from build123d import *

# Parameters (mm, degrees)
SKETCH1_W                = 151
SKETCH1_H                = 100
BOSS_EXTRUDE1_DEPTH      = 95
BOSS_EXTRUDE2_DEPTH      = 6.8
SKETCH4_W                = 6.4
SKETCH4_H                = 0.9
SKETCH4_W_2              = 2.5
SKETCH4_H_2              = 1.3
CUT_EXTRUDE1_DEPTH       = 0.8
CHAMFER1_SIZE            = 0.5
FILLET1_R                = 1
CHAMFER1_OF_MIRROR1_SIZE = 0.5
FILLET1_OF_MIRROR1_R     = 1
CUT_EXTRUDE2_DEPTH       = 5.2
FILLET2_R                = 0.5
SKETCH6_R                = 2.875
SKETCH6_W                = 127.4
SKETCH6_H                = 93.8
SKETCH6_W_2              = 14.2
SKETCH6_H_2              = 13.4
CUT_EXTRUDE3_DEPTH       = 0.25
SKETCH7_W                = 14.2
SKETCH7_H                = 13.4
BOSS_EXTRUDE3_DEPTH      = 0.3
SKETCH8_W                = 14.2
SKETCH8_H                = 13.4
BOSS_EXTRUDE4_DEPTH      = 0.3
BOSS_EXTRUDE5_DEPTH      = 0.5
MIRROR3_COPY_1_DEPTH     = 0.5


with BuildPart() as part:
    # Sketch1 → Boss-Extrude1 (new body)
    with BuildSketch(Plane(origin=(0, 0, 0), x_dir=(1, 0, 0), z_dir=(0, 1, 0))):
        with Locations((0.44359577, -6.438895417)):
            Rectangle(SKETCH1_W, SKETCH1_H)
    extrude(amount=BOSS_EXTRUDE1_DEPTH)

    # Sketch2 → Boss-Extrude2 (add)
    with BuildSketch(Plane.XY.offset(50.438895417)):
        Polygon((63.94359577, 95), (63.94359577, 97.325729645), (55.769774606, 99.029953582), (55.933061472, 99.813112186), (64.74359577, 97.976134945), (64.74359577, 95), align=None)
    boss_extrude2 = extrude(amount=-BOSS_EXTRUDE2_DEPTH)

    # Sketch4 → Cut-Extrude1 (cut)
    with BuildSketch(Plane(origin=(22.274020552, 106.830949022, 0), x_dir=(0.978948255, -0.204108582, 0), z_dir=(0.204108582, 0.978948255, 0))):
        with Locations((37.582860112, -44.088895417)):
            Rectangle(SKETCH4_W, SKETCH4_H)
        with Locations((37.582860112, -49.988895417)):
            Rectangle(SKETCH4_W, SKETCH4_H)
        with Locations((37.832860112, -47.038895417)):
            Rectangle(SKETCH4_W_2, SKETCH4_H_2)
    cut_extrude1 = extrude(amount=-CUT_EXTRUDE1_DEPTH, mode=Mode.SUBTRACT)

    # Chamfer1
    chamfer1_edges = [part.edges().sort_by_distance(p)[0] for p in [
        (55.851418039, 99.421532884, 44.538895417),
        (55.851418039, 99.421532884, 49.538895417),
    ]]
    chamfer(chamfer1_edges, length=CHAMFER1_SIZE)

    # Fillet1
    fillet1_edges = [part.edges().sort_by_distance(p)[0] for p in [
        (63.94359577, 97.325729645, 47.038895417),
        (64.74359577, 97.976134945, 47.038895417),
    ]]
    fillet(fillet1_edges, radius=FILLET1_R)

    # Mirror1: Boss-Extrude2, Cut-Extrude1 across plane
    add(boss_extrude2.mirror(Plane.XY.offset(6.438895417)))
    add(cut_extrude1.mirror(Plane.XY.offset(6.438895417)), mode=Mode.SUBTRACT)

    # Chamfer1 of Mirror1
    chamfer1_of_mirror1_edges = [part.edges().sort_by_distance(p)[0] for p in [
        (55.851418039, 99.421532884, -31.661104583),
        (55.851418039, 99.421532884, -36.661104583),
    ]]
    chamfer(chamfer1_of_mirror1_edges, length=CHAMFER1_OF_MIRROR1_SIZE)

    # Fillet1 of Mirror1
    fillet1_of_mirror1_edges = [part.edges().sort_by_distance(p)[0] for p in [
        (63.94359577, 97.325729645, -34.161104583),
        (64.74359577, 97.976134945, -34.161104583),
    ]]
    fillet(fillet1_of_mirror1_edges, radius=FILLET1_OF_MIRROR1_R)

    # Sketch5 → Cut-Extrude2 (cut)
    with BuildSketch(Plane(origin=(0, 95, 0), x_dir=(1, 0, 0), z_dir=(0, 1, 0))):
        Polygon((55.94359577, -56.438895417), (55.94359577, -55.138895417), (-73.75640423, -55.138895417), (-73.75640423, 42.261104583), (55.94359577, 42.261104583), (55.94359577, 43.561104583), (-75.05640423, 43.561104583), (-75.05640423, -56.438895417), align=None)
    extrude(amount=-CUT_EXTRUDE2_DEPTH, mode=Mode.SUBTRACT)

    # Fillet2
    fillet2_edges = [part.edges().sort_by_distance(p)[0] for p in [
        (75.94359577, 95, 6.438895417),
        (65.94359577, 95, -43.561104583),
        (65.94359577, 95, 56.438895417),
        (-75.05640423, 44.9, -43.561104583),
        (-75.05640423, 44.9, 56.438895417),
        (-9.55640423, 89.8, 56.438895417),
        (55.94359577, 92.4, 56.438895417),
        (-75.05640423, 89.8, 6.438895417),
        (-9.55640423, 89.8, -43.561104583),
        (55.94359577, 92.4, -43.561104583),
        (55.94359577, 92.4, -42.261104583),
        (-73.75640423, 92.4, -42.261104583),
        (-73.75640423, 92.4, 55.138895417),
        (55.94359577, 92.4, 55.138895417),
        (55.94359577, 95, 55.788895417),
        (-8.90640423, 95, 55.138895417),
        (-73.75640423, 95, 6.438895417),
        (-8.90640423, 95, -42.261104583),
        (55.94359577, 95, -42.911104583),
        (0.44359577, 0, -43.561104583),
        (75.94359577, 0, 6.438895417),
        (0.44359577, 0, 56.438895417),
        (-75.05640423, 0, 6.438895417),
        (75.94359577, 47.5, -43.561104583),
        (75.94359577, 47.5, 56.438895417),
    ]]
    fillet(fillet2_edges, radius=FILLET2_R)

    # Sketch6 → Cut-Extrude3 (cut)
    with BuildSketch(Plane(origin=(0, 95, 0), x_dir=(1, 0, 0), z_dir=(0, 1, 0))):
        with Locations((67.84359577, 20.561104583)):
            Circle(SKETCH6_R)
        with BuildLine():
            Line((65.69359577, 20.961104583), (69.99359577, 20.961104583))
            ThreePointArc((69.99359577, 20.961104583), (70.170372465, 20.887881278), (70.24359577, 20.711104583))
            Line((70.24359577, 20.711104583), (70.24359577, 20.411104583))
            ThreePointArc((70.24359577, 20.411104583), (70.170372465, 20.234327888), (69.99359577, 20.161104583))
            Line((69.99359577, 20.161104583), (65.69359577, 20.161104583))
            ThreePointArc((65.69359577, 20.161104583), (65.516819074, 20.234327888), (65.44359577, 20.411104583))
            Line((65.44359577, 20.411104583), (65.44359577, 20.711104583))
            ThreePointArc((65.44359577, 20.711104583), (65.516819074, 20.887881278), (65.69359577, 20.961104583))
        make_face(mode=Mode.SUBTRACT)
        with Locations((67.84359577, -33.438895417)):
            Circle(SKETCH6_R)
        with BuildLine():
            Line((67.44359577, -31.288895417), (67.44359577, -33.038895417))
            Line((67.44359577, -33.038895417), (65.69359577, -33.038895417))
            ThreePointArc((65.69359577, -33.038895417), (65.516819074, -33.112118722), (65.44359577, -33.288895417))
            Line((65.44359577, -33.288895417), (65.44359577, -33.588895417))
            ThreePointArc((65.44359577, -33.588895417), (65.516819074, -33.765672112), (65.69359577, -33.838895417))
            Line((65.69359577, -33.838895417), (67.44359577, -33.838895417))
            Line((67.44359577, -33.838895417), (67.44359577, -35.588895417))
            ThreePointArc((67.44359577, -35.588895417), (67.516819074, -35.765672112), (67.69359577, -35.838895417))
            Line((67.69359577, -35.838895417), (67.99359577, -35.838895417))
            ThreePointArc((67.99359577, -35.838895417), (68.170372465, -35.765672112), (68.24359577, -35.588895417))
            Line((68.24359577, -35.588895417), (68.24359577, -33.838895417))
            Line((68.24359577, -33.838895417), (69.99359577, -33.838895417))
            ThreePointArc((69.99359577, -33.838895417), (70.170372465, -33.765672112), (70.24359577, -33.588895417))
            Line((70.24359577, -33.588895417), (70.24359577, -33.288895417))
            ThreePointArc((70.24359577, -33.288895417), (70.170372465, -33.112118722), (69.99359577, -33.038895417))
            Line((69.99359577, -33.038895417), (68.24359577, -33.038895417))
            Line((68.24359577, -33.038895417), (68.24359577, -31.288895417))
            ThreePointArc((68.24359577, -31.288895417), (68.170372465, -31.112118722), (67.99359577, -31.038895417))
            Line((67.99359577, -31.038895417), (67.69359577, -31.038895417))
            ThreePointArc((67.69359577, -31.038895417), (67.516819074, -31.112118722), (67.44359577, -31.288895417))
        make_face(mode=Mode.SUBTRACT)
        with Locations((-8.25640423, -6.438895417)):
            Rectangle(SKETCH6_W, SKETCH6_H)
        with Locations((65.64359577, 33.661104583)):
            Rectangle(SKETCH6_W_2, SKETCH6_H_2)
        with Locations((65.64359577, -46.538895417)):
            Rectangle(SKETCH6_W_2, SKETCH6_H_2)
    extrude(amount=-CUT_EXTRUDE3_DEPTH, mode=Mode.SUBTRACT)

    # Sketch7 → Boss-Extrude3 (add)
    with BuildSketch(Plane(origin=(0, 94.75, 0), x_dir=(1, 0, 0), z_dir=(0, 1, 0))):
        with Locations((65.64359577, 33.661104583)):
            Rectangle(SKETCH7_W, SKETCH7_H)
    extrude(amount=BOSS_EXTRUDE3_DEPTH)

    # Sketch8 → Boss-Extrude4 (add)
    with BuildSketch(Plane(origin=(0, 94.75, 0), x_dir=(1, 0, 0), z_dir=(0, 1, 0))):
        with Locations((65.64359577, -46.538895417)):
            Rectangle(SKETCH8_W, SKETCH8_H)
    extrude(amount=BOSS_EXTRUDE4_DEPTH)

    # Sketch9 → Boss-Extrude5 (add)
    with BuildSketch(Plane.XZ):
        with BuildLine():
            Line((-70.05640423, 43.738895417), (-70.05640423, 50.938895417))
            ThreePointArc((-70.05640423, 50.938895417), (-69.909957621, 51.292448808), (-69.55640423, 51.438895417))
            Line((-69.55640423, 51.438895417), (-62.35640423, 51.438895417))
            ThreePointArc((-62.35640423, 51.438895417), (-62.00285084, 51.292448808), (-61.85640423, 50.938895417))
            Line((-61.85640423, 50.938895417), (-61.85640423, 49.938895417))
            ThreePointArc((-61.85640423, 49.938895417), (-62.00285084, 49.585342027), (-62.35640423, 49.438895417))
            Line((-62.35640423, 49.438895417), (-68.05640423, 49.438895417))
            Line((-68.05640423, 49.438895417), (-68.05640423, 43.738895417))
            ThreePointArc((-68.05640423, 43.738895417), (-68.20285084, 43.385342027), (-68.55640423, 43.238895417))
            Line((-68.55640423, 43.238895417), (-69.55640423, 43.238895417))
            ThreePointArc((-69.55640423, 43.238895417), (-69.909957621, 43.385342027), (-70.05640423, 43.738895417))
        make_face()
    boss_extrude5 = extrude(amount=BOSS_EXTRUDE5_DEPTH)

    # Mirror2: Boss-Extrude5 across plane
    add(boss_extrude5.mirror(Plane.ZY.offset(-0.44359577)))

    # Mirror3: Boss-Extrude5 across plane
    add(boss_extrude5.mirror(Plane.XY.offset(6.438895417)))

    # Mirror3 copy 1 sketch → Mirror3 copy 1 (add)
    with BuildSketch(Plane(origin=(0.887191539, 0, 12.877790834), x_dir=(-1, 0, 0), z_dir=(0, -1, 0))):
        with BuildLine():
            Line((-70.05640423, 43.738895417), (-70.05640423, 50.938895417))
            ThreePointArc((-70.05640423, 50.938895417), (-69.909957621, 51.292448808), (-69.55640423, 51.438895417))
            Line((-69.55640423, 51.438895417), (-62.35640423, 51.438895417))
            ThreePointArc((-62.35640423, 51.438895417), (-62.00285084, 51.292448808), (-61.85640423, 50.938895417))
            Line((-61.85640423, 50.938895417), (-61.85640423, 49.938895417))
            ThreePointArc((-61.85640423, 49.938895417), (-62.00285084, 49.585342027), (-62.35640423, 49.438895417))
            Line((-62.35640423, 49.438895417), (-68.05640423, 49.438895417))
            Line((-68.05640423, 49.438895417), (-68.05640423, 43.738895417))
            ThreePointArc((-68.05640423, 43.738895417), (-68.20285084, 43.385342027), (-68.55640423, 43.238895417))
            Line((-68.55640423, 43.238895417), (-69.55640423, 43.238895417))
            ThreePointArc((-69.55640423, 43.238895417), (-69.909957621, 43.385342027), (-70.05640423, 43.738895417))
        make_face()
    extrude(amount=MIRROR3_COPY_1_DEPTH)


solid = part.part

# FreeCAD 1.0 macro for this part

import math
import FreeCAD as App
import Part
import Sketcher
Q = App.Units.Quantity


def edges_at(feature, points):
    """Names of the edges that pass closest to the given points."""
    edges = feature.Shape.Edges
    near = lambda p: min(range(len(edges)), key=lambda i: edges[i].distToShape(Part.Vertex(*p))[0])
    return sorted({f"Edge{near(p) + 1}" for p in points})


def add_polygon(sketch, points):
    """Adds a closed chain of lines whose ends are joined by coincident constraints."""
    first, n = sketch.GeometryCount, len(points)
    for a, b in zip(points, points[1:] + points[:1]):
        sketch.addGeometry(Part.LineSegment(App.Vector(*a, 0), App.Vector(*b, 0)), False)
    for i in range(n):
        sketch.addConstraint(Sketcher.Constraint("Coincident", first + i, 2, first + (i + 1) % n, 1))

doc = App.newDocument("Part")
body = doc.addObject("PartDesign::Body", "Body")
body.AllowCompound = True

sketch1 = body.newObject("Sketcher::SketchObject", "Sketch")
sketch1.AttachmentSupport = (doc.getObject("XZ_Plane"), [""])
sketch1.MapMode = "FlatFace"
add_polygon(sketch1, [(-75, -44), (-75, 56), (76, 56), (76, -44)])
sketch1.addConstraint(Sketcher.Constraint("Vertical", 0))
sketch1.addConstraint(Sketcher.Constraint("Horizontal", 1))
sketch1.addConstraint(Sketcher.Constraint("Vertical", 2))
sketch1.addConstraint(Sketcher.Constraint("Horizontal", 3))
sketch1.addConstraint(Sketcher.Constraint("DistanceX", 1, 1, 1, 2, Q("151 mm")))
sketch1.addConstraint(Sketcher.Constraint("DistanceY", 0, 1, 0, 2, Q("100 mm")))
sketch1.addConstraint(Sketcher.Constraint("DistanceX", 0, 2, -1, 1, Q("75.056404 mm")))
sketch1.addConstraint(Sketcher.Constraint("DistanceY", -1, 1, 0, 2, Q("56.438895 mm")))
pad1 = body.newObject("PartDesign::Pad", "Pad")
pad1.Profile = sketch1
pad1.Length = 95
pad1.Reversed = True

sketch2 = body.newObject("Sketcher::SketchObject", "Sketch001")
sketch2.AttachmentSupport = (doc.getObject("XY_Plane"), [""])
sketch2.MapMode = "FlatFace"
sketch2.AttachmentOffset = App.Placement(App.Vector(0, 0, 50.438895), App.Rotation())
add_polygon(sketch2, [(63.9, 97.3), (63.9, 95), (64.7, 95), (64.7, 98), (55.9, 99.8), (55.8, 99)])
sketch2.addConstraint(Sketcher.Constraint("Vertical", 0))
sketch2.addConstraint(Sketcher.Constraint("Horizontal", 1))
sketch2.addConstraint(Sketcher.Constraint("Vertical", 2))
sketch2.addConstraint(Sketcher.Constraint("Perpendicular", 3, 4))
sketch2.addConstraint(Sketcher.Constraint("Perpendicular", 4, 5))
sketch2.addConstraint(Sketcher.Constraint("Distance", 3, Q("9 mm")))
sketch2.addConstraint(Sketcher.Constraint("DistanceX", 1, 1, 1, 2, Q("0.8 mm")))
sketch2.addConstraint(Sketcher.Constraint("DistanceY", -1, 1, 0, 2, Q("95 mm")))
sketch2.addConstraint(Sketcher.Constraint("Distance", 4, Q("0.8 mm")))
sketch2.addConstraint(Sketcher.Constraint("DistanceY", 0, 2, 0, 1, Q("2.32573 mm")))
sketch2.addConstraint(Sketcher.Constraint("DistanceY", 2, 1, 2, 2, Q("2.976135 mm")))
sketch2.addConstraint(Sketcher.Constraint("DistanceX", -1, 1, 3, 2, Q("55.933061 mm")))
pad2 = body.newObject("PartDesign::Pad", "Pad001")
pad2.Profile = sketch2
pad2.Length = 6.8
pad2.Reversed = True

sketch3 = body.newObject("Sketcher::SketchObject", "Sketch002")
sketch3.Placement = App.Placement(App.Vector(22.274021, 106.830949, 0), App.Rotation(App.Vector(0.978948255, -0.204108582, 0), App.Vector(0, 0, -0.999999999), App.Vector(0.204108582, 0.978948255, 0), "ZXY"))
add_polygon(sketch3, [(34.4, -43.6), (34.4, -44.5), (40.8, -44.5), (40.8, -43.6)])
add_polygon(sketch3, [(34.4, -49.5), (34.4, -50.4), (40.8, -50.4), (40.8, -49.5)])
add_polygon(sketch3, [(36.6, -46.4), (36.6, -47.7), (39.1, -47.7), (39.1, -46.4)])
sketch3.addConstraint(Sketcher.Constraint("Vertical", 0))
sketch3.addConstraint(Sketcher.Constraint("Horizontal", 1))
sketch3.addConstraint(Sketcher.Constraint("Vertical", 2))
sketch3.addConstraint(Sketcher.Constraint("Horizontal", 3))
sketch3.addConstraint(Sketcher.Constraint("Vertical", 4))
sketch3.addConstraint(Sketcher.Constraint("Horizontal", 5))
sketch3.addConstraint(Sketcher.Constraint("Vertical", 6))
sketch3.addConstraint(Sketcher.Constraint("Horizontal", 7))
sketch3.addConstraint(Sketcher.Constraint("Vertical", 8))
sketch3.addConstraint(Sketcher.Constraint("Horizontal", 9))
sketch3.addConstraint(Sketcher.Constraint("Vertical", 10))
sketch3.addConstraint(Sketcher.Constraint("Horizontal", 11))
sketch3.addConstraint(Sketcher.Constraint("Vertical", 3, 2, 4, 2))
sketch3.addConstraint(Sketcher.Constraint("Vertical", 2, 2, 5, 2))
sketch3.addConstraint(Sketcher.Constraint("Equal", 2, 4))
sketch3.addConstraint(Sketcher.Constraint("DistanceX", 1, 1, 1, 2, Q("6.4 mm")))
sketch3.addConstraint(Sketcher.Constraint("DistanceX", 9, 1, 9, 2, Q("2.5 mm")))
sketch3.addConstraint(Sketcher.Constraint("DistanceY", 0, 2, 0, 1, Q("0.9 mm")))
sketch3.addConstraint(Sketcher.Constraint("DistanceY", 8, 2, 8, 1, Q("1.3 mm")))
sketch3.addConstraint(Sketcher.Constraint("DistanceY", 6, 2, 1, 2, Q("5 mm")))
sketch3.addConstraint(Sketcher.Constraint("DistanceX", 7, 2, 8, 2, Q("2.2 mm")))
sketch3.addConstraint(Sketcher.Constraint("DistanceY", 7, 2, 8, 2, Q("1.85 mm")))
sketch3.addConstraint(Sketcher.Constraint("DistanceX", -1, 1, 0, 2, Q("34.38286 mm")))
sketch3.addConstraint(Sketcher.Constraint("DistanceY", 0, 2, -1, 1, Q("44.538895 mm")))
pocket1 = body.newObject("PartDesign::Pocket", "Pocket")
pocket1.Profile = sketch3
pocket1.Length = 0.8
doc.recompute()

chamfer = body.newObject("PartDesign::Chamfer", "Chamfer")
chamfer.Base = (pocket1, edges_at(pocket1, [(55.851, 99.422, 44.539), (55.851, 99.422, 49.539)]))
chamfer.Size = 0.5
doc.recompute()

fillet = body.newObject("PartDesign::Fillet", "Fillet")
fillet.Base = (chamfer, edges_at(chamfer, [(63.944, 97.326, 47.039), (64.744, 97.976, 47.039)]))
fillet.Radius = 1
doc.recompute()

datumplane = body.newObject("PartDesign::Plane", "DatumPlane")
datumplane.AttachmentSupport = (doc.getObject("XY_Plane"), [""])
datumplane.MapMode = "FlatFace"
datumplane.AttachmentOffset = App.Placement(App.Vector(0, 0, 6.438895), App.Rotation())
mirrored = body.newObject("PartDesign::Mirrored", "Mirrored")
mirrored.Originals = [pad2, pocket1]
mirrored.MirrorPlane = (datumplane, [""])
body.Tip = mirrored
doc.recompute()

chamfer2 = body.newObject("PartDesign::Chamfer", "Chamfer001")
chamfer2.Base = (mirrored, edges_at(mirrored, [(55.851, 99.422, -31.661), (55.851, 99.422, -36.661)]))
chamfer2.Size = 0.5
doc.recompute()

fillet2 = body.newObject("PartDesign::Fillet", "Fillet001")
fillet2.Base = (chamfer2, edges_at(chamfer2, [(63.944, 97.326, -34.161), (64.744, 97.976, -34.161)]))
fillet2.Radius = 1

sketch4 = body.newObject("Sketcher::SketchObject", "Sketch003")
sketch4.AttachmentSupport = (doc.getObject("XZ_Plane"), [""])
sketch4.MapMode = "FlatFace"
sketch4.AttachmentOffset = App.Placement(App.Vector(0, 0, -95), App.Rotation())
add_polygon(sketch4, [(55.9, 56.4), (55.9, 55.1), (-73.8, 55.1), (-73.8, -42.3), (55.9, -42.3), (55.9, -43.6), (-75.1, -43.6), (-75.1, 56.4)])
sketch4.addConstraint(Sketcher.Constraint("Vertical", 0))
sketch4.addConstraint(Sketcher.Constraint("Horizontal", 1))
sketch4.addConstraint(Sketcher.Constraint("Vertical", 2))
sketch4.addConstraint(Sketcher.Constraint("Horizontal", 3))
sketch4.addConstraint(Sketcher.Constraint("Vertical", 4))
sketch4.addConstraint(Sketcher.Constraint("Horizontal", 5))
sketch4.addConstraint(Sketcher.Constraint("Vertical", 6))
sketch4.addConstraint(Sketcher.Constraint("Horizontal", 7))
sketch4.addConstraint(Sketcher.Constraint("Vertical", 0, 2, 3, 2))
sketch4.addConstraint(Sketcher.Constraint("Equal", 0, 4))
sketch4.addConstraint(Sketcher.Constraint("DistanceX", 5, 2, 5, 1, Q("131 mm")))
sketch4.addConstraint(Sketcher.Constraint("DistanceY", 6, 1, 6, 2, Q("100 mm")))
sketch4.addConstraint(Sketcher.Constraint("DistanceX", 1, 2, 1, 1, Q("129.7 mm")))
sketch4.addConstraint(Sketcher.Constraint("DistanceY", 0, 2, 0, 1, Q("1.3 mm")))
sketch4.addConstraint(Sketcher.Constraint("DistanceX", -1, 1, 0, 2, Q("55.943596 mm")))
sketch4.addConstraint(Sketcher.Constraint("DistanceY", -1, 1, 0, 2, Q("55.138895 mm")))
pocket2 = body.newObject("PartDesign::Pocket", "Pocket001")
pocket2.Profile = sketch4
pocket2.Length = 5.2
pocket2.Reversed = True
doc.recompute()

fillet3 = body.newObject("PartDesign::Fillet", "Fillet002")
fillet3.Base = (pocket2, edges_at(pocket2, [
    (75.944, 95, 6.439),
    (65.944, 95, -43.561),
    (65.944, 95, 56.439),
    (-75.056, 44.9, -43.561),
    (-75.056, 44.9, 56.439),
    (-9.556, 89.8, 56.439),
    (55.944, 92.4, 56.439),
    (-75.056, 89.8, 6.439),
    (-9.556, 89.8, -43.561),
    (55.944, 92.4, -43.561),
    (55.944, 92.4, -42.261),
    (-73.756, 92.4, -42.261),
    (-73.756, 92.4, 55.139),
    (55.944, 92.4, 55.139),
    (55.944, 95, 55.789),
    (-8.906, 95, 55.139),
    (-73.756, 95, 6.439),
    (-8.906, 95, -42.261),
    (55.944, 95, -42.911),
    (0.444, 0, -43.561),
    (75.944, 0, 6.439),
    (0.444, 0, 56.439),
    (-75.056, 0, 6.439),
    (75.944, 47.5, -43.561),
    (75.944, 47.5, 56.439),
]))
fillet3.Radius = 0.5

sketch5 = body.newObject("Sketcher::SketchObject", "Sketch004")
sketch5.AttachmentSupport = (doc.getObject("XZ_Plane"), [""])
sketch5.MapMode = "FlatFace"
sketch5.AttachmentOffset = App.Placement(App.Vector(0, 0, -95), App.Rotation())
sketch5.addGeometry(Part.Circle(App.Vector(67.84, -20.56, 0), App.Vector(0, 0, 1), 2.88), False)
sketch5.addGeometry(Part.ArcOfCircle(Part.Circle(App.Vector(65.69, -20.71, 0), App.Vector(0, 0, 1), 0.25), math.radians(180), math.radians(270)), False)
sketch5.addGeometry(Part.LineSegment(App.Vector(65.69, -20.96, 0), App.Vector(69.99, -20.96, 0)), False)
sketch5.addGeometry(Part.ArcOfCircle(Part.Circle(App.Vector(69.99, -20.71, 0), App.Vector(0, 0, 1), 0.25), math.radians(-90), math.radians(0)), False)
sketch5.addGeometry(Part.LineSegment(App.Vector(70.24, -20.71, 0), App.Vector(70.24, -20.41, 0)), False)
sketch5.addGeometry(Part.ArcOfCircle(Part.Circle(App.Vector(69.99, -20.41, 0), App.Vector(0, 0, 1), 0.25), math.radians(0), math.radians(90)), False)
sketch5.addGeometry(Part.LineSegment(App.Vector(69.99, -20.16, 0), App.Vector(65.69, -20.16, 0)), False)
sketch5.addGeometry(Part.ArcOfCircle(Part.Circle(App.Vector(65.69, -20.41, 0), App.Vector(0, 0, 1), 0.25), math.radians(90), math.radians(180)), False)
sketch5.addGeometry(Part.LineSegment(App.Vector(65.44, -20.41, 0), App.Vector(65.44, -20.71, 0)), False)
sketch5.addGeometry(Part.Circle(App.Vector(67.84, 33.44, 0), App.Vector(0, 0, 1), 2.88), False)
sketch5.addGeometry(Part.LineSegment(App.Vector(67.44, 33.04, 0), App.Vector(67.44, 31.29, 0)), False)
sketch5.addGeometry(Part.ArcOfCircle(Part.Circle(App.Vector(67.69, 31.29, 0), App.Vector(0, 0, 1), 0.25), math.radians(180), math.radians(270)), False)
sketch5.addGeometry(Part.LineSegment(App.Vector(67.69, 31.04, 0), App.Vector(67.99, 31.04, 0)), False)
sketch5.addGeometry(Part.ArcOfCircle(Part.Circle(App.Vector(67.99, 31.29, 0), App.Vector(0, 0, 1), 0.25), math.radians(-90), math.radians(0)), False)
sketch5.addGeometry(Part.LineSegment(App.Vector(68.24, 31.29, 0), App.Vector(68.24, 33.04, 0)), False)
sketch5.addGeometry(Part.LineSegment(App.Vector(68.24, 33.04, 0), App.Vector(69.99, 33.04, 0)), False)
sketch5.addGeometry(Part.ArcOfCircle(Part.Circle(App.Vector(69.99, 33.29, 0), App.Vector(0, 0, 1), 0.25), math.radians(-90), math.radians(0)), False)
sketch5.addGeometry(Part.LineSegment(App.Vector(70.24, 33.29, 0), App.Vector(70.24, 33.59, 0)), False)
sketch5.addGeometry(Part.ArcOfCircle(Part.Circle(App.Vector(69.99, 33.59, 0), App.Vector(0, 0, 1), 0.25), math.radians(0), math.radians(90)), False)
sketch5.addGeometry(Part.LineSegment(App.Vector(69.99, 33.84, 0), App.Vector(68.24, 33.84, 0)), False)
sketch5.addGeometry(Part.LineSegment(App.Vector(68.24, 33.84, 0), App.Vector(68.24, 35.59, 0)), False)
sketch5.addGeometry(Part.ArcOfCircle(Part.Circle(App.Vector(67.99, 35.59, 0), App.Vector(0, 0, 1), 0.25), math.radians(0), math.radians(90)), False)
sketch5.addGeometry(Part.LineSegment(App.Vector(67.99, 35.84, 0), App.Vector(67.69, 35.84, 0)), False)
sketch5.addGeometry(Part.ArcOfCircle(Part.Circle(App.Vector(67.69, 35.59, 0), App.Vector(0, 0, 1), 0.25), math.radians(90), math.radians(180)), False)
sketch5.addGeometry(Part.LineSegment(App.Vector(67.44, 35.59, 0), App.Vector(67.44, 33.84, 0)), False)
sketch5.addGeometry(Part.LineSegment(App.Vector(67.44, 33.84, 0), App.Vector(65.69, 33.84, 0)), False)
sketch5.addGeometry(Part.ArcOfCircle(Part.Circle(App.Vector(65.69, 33.59, 0), App.Vector(0, 0, 1), 0.25), math.radians(90), math.radians(180)), False)
sketch5.addGeometry(Part.LineSegment(App.Vector(65.44, 33.59, 0), App.Vector(65.44, 33.29, 0)), False)
sketch5.addGeometry(Part.ArcOfCircle(Part.Circle(App.Vector(65.69, 33.29, 0), App.Vector(0, 0, 1), 0.25), math.radians(180), math.radians(270)), False)
sketch5.addGeometry(Part.LineSegment(App.Vector(65.69, 33.04, 0), App.Vector(67.44, 33.04, 0)), False)
add_polygon(sketch5, [(-71.96, -40.46), (-71.96, 53.34), (55.44, 53.34), (55.44, -40.46)])
add_polygon(sketch5, [(58.54, -40.36), (58.54, -26.96), (72.74, -26.96), (72.74, -40.36)])
add_polygon(sketch5, [(58.54, 39.84), (58.54, 53.24), (72.74, 53.24), (72.74, 39.84)])
sketch5.addConstraint(Sketcher.Constraint("Tangent", 1, 2, 2, 1))
sketch5.addConstraint(Sketcher.Constraint("Tangent", 2, 2, 3, 1))
sketch5.addConstraint(Sketcher.Constraint("Tangent", 3, 2, 4, 1))
sketch5.addConstraint(Sketcher.Constraint("Tangent", 4, 2, 5, 1))
sketch5.addConstraint(Sketcher.Constraint("Tangent", 5, 2, 6, 1))
sketch5.addConstraint(Sketcher.Constraint("Tangent", 6, 2, 7, 1))
sketch5.addConstraint(Sketcher.Constraint("Tangent", 7, 2, 8, 1))
sketch5.addConstraint(Sketcher.Constraint("Tangent", 8, 2, 1, 1))
sketch5.addConstraint(Sketcher.Constraint("Tangent", 10, 2, 11, 1))
sketch5.addConstraint(Sketcher.Constraint("Tangent", 11, 2, 12, 1))
sketch5.addConstraint(Sketcher.Constraint("Tangent", 12, 2, 13, 1))
sketch5.addConstraint(Sketcher.Constraint("Tangent", 13, 2, 14, 1))
sketch5.addConstraint(Sketcher.Constraint("Coincident", 14, 2, 15, 1))
sketch5.addConstraint(Sketcher.Constraint("Tangent", 15, 2, 16, 1))
sketch5.addConstraint(Sketcher.Constraint("Tangent", 16, 2, 17, 1))
sketch5.addConstraint(Sketcher.Constraint("Tangent", 17, 2, 18, 1))
sketch5.addConstraint(Sketcher.Constraint("Tangent", 18, 2, 19, 1))
sketch5.addConstraint(Sketcher.Constraint("Coincident", 19, 2, 20, 1))
sketch5.addConstraint(Sketcher.Constraint("Tangent", 20, 2, 21, 1))
sketch5.addConstraint(Sketcher.Constraint("Tangent", 21, 2, 22, 1))
sketch5.addConstraint(Sketcher.Constraint("Tangent", 22, 2, 23, 1))
sketch5.addConstraint(Sketcher.Constraint("Tangent", 23, 2, 24, 1))
sketch5.addConstraint(Sketcher.Constraint("Coincident", 24, 2, 25, 1))
sketch5.addConstraint(Sketcher.Constraint("Tangent", 25, 2, 26, 1))
sketch5.addConstraint(Sketcher.Constraint("Tangent", 26, 2, 27, 1))
sketch5.addConstraint(Sketcher.Constraint("Tangent", 27, 2, 28, 1))
sketch5.addConstraint(Sketcher.Constraint("Tangent", 28, 2, 29, 1))
sketch5.addConstraint(Sketcher.Constraint("Coincident", 29, 2, 10, 1))
sketch5.addConstraint(Sketcher.Constraint("Horizontal", 2))
sketch5.addConstraint(Sketcher.Constraint("Vertical", 4))
sketch5.addConstraint(Sketcher.Constraint("Horizontal", 6))
sketch5.addConstraint(Sketcher.Constraint("Vertical", 8))
sketch5.addConstraint(Sketcher.Constraint("Vertical", 10))
sketch5.addConstraint(Sketcher.Constraint("Horizontal", 12))
sketch5.addConstraint(Sketcher.Constraint("Vertical", 14))
sketch5.addConstraint(Sketcher.Constraint("Horizontal", 15))
sketch5.addConstraint(Sketcher.Constraint("Vertical", 17))
sketch5.addConstraint(Sketcher.Constraint("Horizontal", 19))
sketch5.addConstraint(Sketcher.Constraint("Vertical", 20))
sketch5.addConstraint(Sketcher.Constraint("Horizontal", 22))
sketch5.addConstraint(Sketcher.Constraint("Vertical", 24))
sketch5.addConstraint(Sketcher.Constraint("Horizontal", 25))
sketch5.addConstraint(Sketcher.Constraint("Vertical", 27))
sketch5.addConstraint(Sketcher.Constraint("Horizontal", 29))
sketch5.addConstraint(Sketcher.Constraint("Vertical", 30))
sketch5.addConstraint(Sketcher.Constraint("Horizontal", 31))
sketch5.addConstraint(Sketcher.Constraint("Vertical", 32))
sketch5.addConstraint(Sketcher.Constraint("Horizontal", 33))
sketch5.addConstraint(Sketcher.Constraint("Vertical", 34))
sketch5.addConstraint(Sketcher.Constraint("Horizontal", 35))
sketch5.addConstraint(Sketcher.Constraint("Vertical", 36))
sketch5.addConstraint(Sketcher.Constraint("Horizontal", 37))
sketch5.addConstraint(Sketcher.Constraint("Vertical", 38))
sketch5.addConstraint(Sketcher.Constraint("Horizontal", 39))
sketch5.addConstraint(Sketcher.Constraint("Vertical", 40))
sketch5.addConstraint(Sketcher.Constraint("Horizontal", 41))
sketch5.addConstraint(Sketcher.Constraint("Equal", 1, 3))
sketch5.addConstraint(Sketcher.Constraint("Equal", 3, 5))
sketch5.addConstraint(Sketcher.Constraint("Equal", 5, 7))
sketch5.addConstraint(Sketcher.Constraint("Equal", 0, 9))
sketch5.addConstraint(Sketcher.Constraint("Equal", 7, 11))
sketch5.addConstraint(Sketcher.Constraint("Equal", 11, 13))
sketch5.addConstraint(Sketcher.Constraint("Equal", 13, 16))
sketch5.addConstraint(Sketcher.Constraint("Equal", 16, 18))
sketch5.addConstraint(Sketcher.Constraint("Equal", 18, 21))
sketch5.addConstraint(Sketcher.Constraint("Equal", 21, 23))
sketch5.addConstraint(Sketcher.Constraint("Equal", 23, 26))
sketch5.addConstraint(Sketcher.Constraint("Equal", 26, 28))
sketch5.addConstraint(Sketcher.Constraint("Horizontal", 18, 3, 26, 3))
sketch5.addConstraint(Sketcher.Constraint("Horizontal", 16, 3, 28, 3))
sketch5.addConstraint(Sketcher.Constraint("Vertical", 0, 3, 9, 3))
sketch5.addConstraint(Sketcher.Constraint("Vertical", 5, 3, 16, 3))
sketch5.addConstraint(Sketcher.Constraint("Vertical", 13, 3, 21, 3))
sketch5.addConstraint(Sketcher.Constraint("Vertical", 11, 3, 23, 3))
sketch5.addConstraint(Sketcher.Constraint("Vertical", 7, 3, 26, 3))
sketch5.addConstraint(Sketcher.Constraint("Vertical", 37, 2, 38, 2))
sketch5.addConstraint(Sketcher.Constraint("Vertical", 36, 2, 39, 2))
sketch5.addConstraint(Sketcher.Constraint("Equal", 19, 25))
sketch5.addConstraint(Sketcher.Constraint("Equal", 22, 4))
sketch5.addConstraint(Sketcher.Constraint("Equal", 29, 10))
sketch5.addConstraint(Sketcher.Constraint("Equal", 8, 17))
sketch5.addConstraint(Sketcher.Constraint("Equal", 14, 20))
sketch5.addConstraint(Sketcher.Constraint("Equal", 36, 38))
sketch5.addConstraint(Sketcher.Constraint("Diameter", 0, Q("5.75 mm")))
sketch5.addConstraint(Sketcher.Constraint("Radius", 1, Q("0.25 mm")))
sketch5.addConstraint(Sketcher.Constraint("DistanceX", 2, 1, 2, 2, Q("4.3 mm")))
sketch5.addConstraint(Sketcher.Constraint("DistanceX", 12, 1, 12, 2, Q("0.3 mm")))
sketch5.addConstraint(Sketcher.Constraint("DistanceX", 31, 1, 31, 2, Q("127.4 mm")))
sketch5.addConstraint(Sketcher.Constraint("DistanceX", 35, 1, 35, 2, Q("14.2 mm")))
sketch5.addConstraint(Sketcher.Constraint("DistanceY", 30, 1, 30, 2, Q("93.8 mm")))
sketch5.addConstraint(Sketcher.Constraint("DistanceY", 34, 1, 34, 2, Q("13.4 mm")))
sketch5.addConstraint(Sketcher.Constraint("DistanceY", 0, 3, 9, 3, Q("54 mm")))
sketch5.addConstraint(Sketcher.Constraint("DistanceY", 1, 3, 11, 3, Q("52 mm")))
sketch5.addConstraint(Sketcher.Constraint("DistanceX", 31, 2, 23, 2, Q("12 mm")))
sketch5.addConstraint(Sketcher.Constraint("DistanceY", 34, 2, 1, 2, Q("6 mm")))
sketch5.addConstraint(Sketcher.Constraint("DistanceY", 21, 2, 40, 2, Q("4 mm")))
sketch5.addConstraint(Sketcher.Constraint("DistanceY", 1, 2, 0, 3, Q("0.4 mm")))
sketch5.addConstraint(Sketcher.Constraint("DistanceX", 0, 3, 3, 2, Q("2.4 mm")))
sketch5.addConstraint(Sketcher.Constraint("DistanceY", 25, 2, 30, 2, Q("19.5 mm")))
sketch5.addConstraint(Sketcher.Constraint("DistanceX", 34, 2, 8, 2, Q("6.9 mm")))
sketch5.addConstraint(Sketcher.Constraint("DistanceX", -1, 1, 0, 3, Q("67.843596 mm")))
sketch5.addConstraint(Sketcher.Constraint("DistanceY", 0, 3, -1, 1, Q("20.561105 mm")))
pocket3 = body.newObject("PartDesign::Pocket", "Pocket002")
pocket3.Profile = sketch5
pocket3.Length = 0.25
pocket3.Reversed = True

sketch6 = body.newObject("Sketcher::SketchObject", "Sketch005")
sketch6.AttachmentSupport = (doc.getObject("XZ_Plane"), [""])
sketch6.MapMode = "FlatFace"
sketch6.AttachmentOffset = App.Placement(App.Vector(0, 0, -94.75), App.Rotation())
add_polygon(sketch6, [(59, -40), (59, -27), (73, -27), (73, -40)])
sketch6.addConstraint(Sketcher.Constraint("Vertical", 0))
sketch6.addConstraint(Sketcher.Constraint("Horizontal", 1))
sketch6.addConstraint(Sketcher.Constraint("Vertical", 2))
sketch6.addConstraint(Sketcher.Constraint("Horizontal", 3))
sketch6.addConstraint(Sketcher.Constraint("DistanceX", 1, 1, 1, 2, Q("14.2 mm")))
sketch6.addConstraint(Sketcher.Constraint("DistanceY", 0, 1, 0, 2, Q("13.4 mm")))
sketch6.addConstraint(Sketcher.Constraint("DistanceX", -1, 1, 0, 2, Q("58.543596 mm")))
sketch6.addConstraint(Sketcher.Constraint("DistanceY", 0, 2, -1, 1, Q("26.961105 mm")))
pad3 = body.newObject("PartDesign::Pad", "Pad002")
pad3.Profile = sketch6
pad3.Length = 0.3
pad3.Reversed = True

sketch7 = body.newObject("Sketcher::SketchObject", "Sketch006")
sketch7.AttachmentSupport = (doc.getObject("XZ_Plane"), [""])
sketch7.MapMode = "FlatFace"
sketch7.AttachmentOffset = App.Placement(App.Vector(0, 0, -94.75), App.Rotation())
add_polygon(sketch7, [(59, 40), (59, 53), (73, 53), (73, 40)])
sketch7.addConstraint(Sketcher.Constraint("Vertical", 0))
sketch7.addConstraint(Sketcher.Constraint("Horizontal", 1))
sketch7.addConstraint(Sketcher.Constraint("Vertical", 2))
sketch7.addConstraint(Sketcher.Constraint("Horizontal", 3))
sketch7.addConstraint(Sketcher.Constraint("DistanceX", 1, 1, 1, 2, Q("14.2 mm")))
sketch7.addConstraint(Sketcher.Constraint("DistanceY", 0, 1, 0, 2, Q("13.4 mm")))
sketch7.addConstraint(Sketcher.Constraint("DistanceX", -1, 1, 0, 2, Q("58.543596 mm")))
sketch7.addConstraint(Sketcher.Constraint("DistanceY", -1, 1, 0, 2, Q("53.238895 mm")))
pad4 = body.newObject("PartDesign::Pad", "Pad003")
pad4.Profile = sketch7
pad4.Length = 0.3
pad4.Reversed = True

sketch8 = body.newObject("Sketcher::SketchObject", "Sketch007")
sketch8.AttachmentSupport = (doc.getObject("XZ_Plane"), [""])
sketch8.MapMode = "FlatFace"
sketch8.addGeometry(Part.LineSegment(App.Vector(-70.06, 50.94, 0), App.Vector(-70.06, 43.74, 0)), False)
sketch8.addGeometry(Part.ArcOfCircle(Part.Circle(App.Vector(-69.56, 43.74, 0), App.Vector(0, 0, 1), 0.5), math.radians(180), math.radians(270)), False)
sketch8.addGeometry(Part.LineSegment(App.Vector(-69.56, 43.24, 0), App.Vector(-68.56, 43.24, 0)), False)
sketch8.addGeometry(Part.ArcOfCircle(Part.Circle(App.Vector(-68.56, 43.74, 0), App.Vector(0, 0, 1), 0.5), math.radians(-90), math.radians(0)), False)
sketch8.addGeometry(Part.LineSegment(App.Vector(-68.06, 43.74, 0), App.Vector(-68.06, 49.44, 0)), False)
sketch8.addGeometry(Part.LineSegment(App.Vector(-68.06, 49.44, 0), App.Vector(-62.36, 49.44, 0)), False)
sketch8.addGeometry(Part.ArcOfCircle(Part.Circle(App.Vector(-62.36, 49.94, 0), App.Vector(0, 0, 1), 0.5), math.radians(-90), math.radians(0)), False)
sketch8.addGeometry(Part.LineSegment(App.Vector(-61.86, 49.94, 0), App.Vector(-61.86, 50.94, 0)), False)
sketch8.addGeometry(Part.ArcOfCircle(Part.Circle(App.Vector(-62.36, 50.94, 0), App.Vector(0, 0, 1), 0.5), math.radians(0), math.radians(90)), False)
sketch8.addGeometry(Part.LineSegment(App.Vector(-62.36, 51.44, 0), App.Vector(-69.56, 51.44, 0)), False)
sketch8.addGeometry(Part.ArcOfCircle(Part.Circle(App.Vector(-69.56, 50.94, 0), App.Vector(0, 0, 1), 0.5), math.radians(90), math.radians(180)), False)
sketch8.addConstraint(Sketcher.Constraint("Tangent", 0, 2, 1, 1))
sketch8.addConstraint(Sketcher.Constraint("Tangent", 1, 2, 2, 1))
sketch8.addConstraint(Sketcher.Constraint("Tangent", 2, 2, 3, 1))
sketch8.addConstraint(Sketcher.Constraint("Tangent", 3, 2, 4, 1))
sketch8.addConstraint(Sketcher.Constraint("Coincident", 4, 2, 5, 1))
sketch8.addConstraint(Sketcher.Constraint("Tangent", 5, 2, 6, 1))
sketch8.addConstraint(Sketcher.Constraint("Tangent", 6, 2, 7, 1))
sketch8.addConstraint(Sketcher.Constraint("Tangent", 7, 2, 8, 1))
sketch8.addConstraint(Sketcher.Constraint("Tangent", 8, 2, 9, 1))
sketch8.addConstraint(Sketcher.Constraint("Tangent", 9, 2, 10, 1))
sketch8.addConstraint(Sketcher.Constraint("Tangent", 10, 2, 0, 1))
sketch8.addConstraint(Sketcher.Constraint("Vertical", 0))
sketch8.addConstraint(Sketcher.Constraint("Horizontal", 2))
sketch8.addConstraint(Sketcher.Constraint("Vertical", 4))
sketch8.addConstraint(Sketcher.Constraint("Horizontal", 5))
sketch8.addConstraint(Sketcher.Constraint("Vertical", 7))
sketch8.addConstraint(Sketcher.Constraint("Horizontal", 9))
sketch8.addConstraint(Sketcher.Constraint("Equal", 1, 3))
sketch8.addConstraint(Sketcher.Constraint("Equal", 3, 6))
sketch8.addConstraint(Sketcher.Constraint("Equal", 6, 8))
sketch8.addConstraint(Sketcher.Constraint("Equal", 8, 10))
sketch8.addConstraint(Sketcher.Constraint("Equal", 9, 0))
sketch8.addConstraint(Sketcher.Constraint("Equal", 5, 4))
sketch8.addConstraint(Sketcher.Constraint("Radius", 1, Q("0.5 mm")))
sketch8.addConstraint(Sketcher.Constraint("DistanceX", 2, 1, 2, 2, Q("1 mm")))
sketch8.addConstraint(Sketcher.Constraint("DistanceX", 5, 1, 5, 2, Q("5.7 mm")))
sketch8.addConstraint(Sketcher.Constraint("DistanceX", 1, 3, -1, 1, Q("69.556404 mm")))
sketch8.addConstraint(Sketcher.Constraint("DistanceY", -1, 1, 1, 3, Q("43.738895 mm")))
pad5 = body.newObject("PartDesign::Pad", "Pad004")
pad5.Profile = sketch8
pad5.Length = 0.5
doc.recompute()

datumplane2 = body.newObject("PartDesign::Plane", "DatumPlane001")
datumplane2.AttachmentSupport = (doc.getObject("YZ_Plane"), [""])
datumplane2.MapMode = "FlatFace"
datumplane2.AttachmentOffset = App.Placement(App.Vector(0, 0, 0.443596), App.Rotation())
mirrored2 = body.newObject("PartDesign::Mirrored", "Mirrored001")
mirrored2.Originals = [pad5]
mirrored2.MirrorPlane = (datumplane2, [""])
body.Tip = mirrored2
doc.recompute()

datumplane3 = body.newObject("PartDesign::Plane", "DatumPlane002")
datumplane3.AttachmentSupport = (doc.getObject("XY_Plane"), [""])
datumplane3.MapMode = "FlatFace"
datumplane3.AttachmentOffset = App.Placement(App.Vector(0, 0, 6.438895), App.Rotation())
mirrored3 = body.newObject("PartDesign::Mirrored", "Mirrored002")
mirrored3.Originals = [pad5]
mirrored3.MirrorPlane = (datumplane3, [""])
body.Tip = mirrored3

sketch9 = body.newObject("Sketcher::SketchObject", "Sketch008")
sketch9.AttachmentSupport = (doc.getObject("XZ_Plane"), [""])
sketch9.MapMode = "FlatFace"
sketch9.addGeometry(Part.LineSegment(App.Vector(70.94, -38.06, 0), App.Vector(70.94, -30.86, 0)), False)
sketch9.addGeometry(Part.ArcOfCircle(Part.Circle(App.Vector(70.44, -30.86, 0), App.Vector(0, 0, 1), 0.5), math.radians(0), math.radians(90)), False)
sketch9.addGeometry(Part.LineSegment(App.Vector(70.44, -30.36, 0), App.Vector(69.44, -30.36, 0)), False)
sketch9.addGeometry(Part.ArcOfCircle(Part.Circle(App.Vector(69.44, -30.86, 0), App.Vector(0, 0, 1), 0.5), math.radians(90), math.radians(180)), False)
sketch9.addGeometry(Part.LineSegment(App.Vector(68.94, -30.86, 0), App.Vector(68.94, -36.56, 0)), False)
sketch9.addGeometry(Part.LineSegment(App.Vector(68.94, -36.56, 0), App.Vector(63.24, -36.56, 0)), False)
sketch9.addGeometry(Part.ArcOfCircle(Part.Circle(App.Vector(63.24, -37.06, 0), App.Vector(0, 0, 1), 0.5), math.radians(90), math.radians(180)), False)
sketch9.addGeometry(Part.LineSegment(App.Vector(62.74, -37.06, 0), App.Vector(62.74, -38.06, 0)), False)
sketch9.addGeometry(Part.ArcOfCircle(Part.Circle(App.Vector(63.24, -38.06, 0), App.Vector(0, 0, 1), 0.5), math.radians(180), math.radians(270)), False)
sketch9.addGeometry(Part.LineSegment(App.Vector(63.24, -38.56, 0), App.Vector(70.44, -38.56, 0)), False)
sketch9.addGeometry(Part.ArcOfCircle(Part.Circle(App.Vector(70.44, -38.06, 0), App.Vector(0, 0, 1), 0.5), math.radians(-90), math.radians(0)), False)
sketch9.addConstraint(Sketcher.Constraint("Tangent", 0, 2, 1, 1))
sketch9.addConstraint(Sketcher.Constraint("Tangent", 1, 2, 2, 1))
sketch9.addConstraint(Sketcher.Constraint("Tangent", 2, 2, 3, 1))
sketch9.addConstraint(Sketcher.Constraint("Tangent", 3, 2, 4, 1))
sketch9.addConstraint(Sketcher.Constraint("Coincident", 4, 2, 5, 1))
sketch9.addConstraint(Sketcher.Constraint("Tangent", 5, 2, 6, 1))
sketch9.addConstraint(Sketcher.Constraint("Tangent", 6, 2, 7, 1))
sketch9.addConstraint(Sketcher.Constraint("Tangent", 7, 2, 8, 1))
sketch9.addConstraint(Sketcher.Constraint("Tangent", 8, 2, 9, 1))
sketch9.addConstraint(Sketcher.Constraint("Tangent", 9, 2, 10, 1))
sketch9.addConstraint(Sketcher.Constraint("Tangent", 10, 2, 0, 1))
sketch9.addConstraint(Sketcher.Constraint("Vertical", 0))
sketch9.addConstraint(Sketcher.Constraint("Horizontal", 2))
sketch9.addConstraint(Sketcher.Constraint("Vertical", 4))
sketch9.addConstraint(Sketcher.Constraint("Horizontal", 5))
sketch9.addConstraint(Sketcher.Constraint("Vertical", 7))
sketch9.addConstraint(Sketcher.Constraint("Horizontal", 9))
sketch9.addConstraint(Sketcher.Constraint("Equal", 1, 3))
sketch9.addConstraint(Sketcher.Constraint("Equal", 3, 6))
sketch9.addConstraint(Sketcher.Constraint("Equal", 6, 8))
sketch9.addConstraint(Sketcher.Constraint("Equal", 8, 10))
sketch9.addConstraint(Sketcher.Constraint("Equal", 9, 0))
sketch9.addConstraint(Sketcher.Constraint("Equal", 5, 4))
sketch9.addConstraint(Sketcher.Constraint("Radius", 1, Q("0.5 mm")))
sketch9.addConstraint(Sketcher.Constraint("DistanceX", 2, 2, 2, 1, Q("1 mm")))
sketch9.addConstraint(Sketcher.Constraint("DistanceX", 5, 2, 5, 1, Q("5.7 mm")))
sketch9.addConstraint(Sketcher.Constraint("DistanceX", -1, 1, 1, 3, Q("70.443596 mm")))
sketch9.addConstraint(Sketcher.Constraint("DistanceY", 1, 3, -1, 1, Q("30.861105 mm")))
pad6 = body.newObject("PartDesign::Pad", "Pad005")
pad6.Profile = sketch9
pad6.Length = 0.5

doc.recompute()
